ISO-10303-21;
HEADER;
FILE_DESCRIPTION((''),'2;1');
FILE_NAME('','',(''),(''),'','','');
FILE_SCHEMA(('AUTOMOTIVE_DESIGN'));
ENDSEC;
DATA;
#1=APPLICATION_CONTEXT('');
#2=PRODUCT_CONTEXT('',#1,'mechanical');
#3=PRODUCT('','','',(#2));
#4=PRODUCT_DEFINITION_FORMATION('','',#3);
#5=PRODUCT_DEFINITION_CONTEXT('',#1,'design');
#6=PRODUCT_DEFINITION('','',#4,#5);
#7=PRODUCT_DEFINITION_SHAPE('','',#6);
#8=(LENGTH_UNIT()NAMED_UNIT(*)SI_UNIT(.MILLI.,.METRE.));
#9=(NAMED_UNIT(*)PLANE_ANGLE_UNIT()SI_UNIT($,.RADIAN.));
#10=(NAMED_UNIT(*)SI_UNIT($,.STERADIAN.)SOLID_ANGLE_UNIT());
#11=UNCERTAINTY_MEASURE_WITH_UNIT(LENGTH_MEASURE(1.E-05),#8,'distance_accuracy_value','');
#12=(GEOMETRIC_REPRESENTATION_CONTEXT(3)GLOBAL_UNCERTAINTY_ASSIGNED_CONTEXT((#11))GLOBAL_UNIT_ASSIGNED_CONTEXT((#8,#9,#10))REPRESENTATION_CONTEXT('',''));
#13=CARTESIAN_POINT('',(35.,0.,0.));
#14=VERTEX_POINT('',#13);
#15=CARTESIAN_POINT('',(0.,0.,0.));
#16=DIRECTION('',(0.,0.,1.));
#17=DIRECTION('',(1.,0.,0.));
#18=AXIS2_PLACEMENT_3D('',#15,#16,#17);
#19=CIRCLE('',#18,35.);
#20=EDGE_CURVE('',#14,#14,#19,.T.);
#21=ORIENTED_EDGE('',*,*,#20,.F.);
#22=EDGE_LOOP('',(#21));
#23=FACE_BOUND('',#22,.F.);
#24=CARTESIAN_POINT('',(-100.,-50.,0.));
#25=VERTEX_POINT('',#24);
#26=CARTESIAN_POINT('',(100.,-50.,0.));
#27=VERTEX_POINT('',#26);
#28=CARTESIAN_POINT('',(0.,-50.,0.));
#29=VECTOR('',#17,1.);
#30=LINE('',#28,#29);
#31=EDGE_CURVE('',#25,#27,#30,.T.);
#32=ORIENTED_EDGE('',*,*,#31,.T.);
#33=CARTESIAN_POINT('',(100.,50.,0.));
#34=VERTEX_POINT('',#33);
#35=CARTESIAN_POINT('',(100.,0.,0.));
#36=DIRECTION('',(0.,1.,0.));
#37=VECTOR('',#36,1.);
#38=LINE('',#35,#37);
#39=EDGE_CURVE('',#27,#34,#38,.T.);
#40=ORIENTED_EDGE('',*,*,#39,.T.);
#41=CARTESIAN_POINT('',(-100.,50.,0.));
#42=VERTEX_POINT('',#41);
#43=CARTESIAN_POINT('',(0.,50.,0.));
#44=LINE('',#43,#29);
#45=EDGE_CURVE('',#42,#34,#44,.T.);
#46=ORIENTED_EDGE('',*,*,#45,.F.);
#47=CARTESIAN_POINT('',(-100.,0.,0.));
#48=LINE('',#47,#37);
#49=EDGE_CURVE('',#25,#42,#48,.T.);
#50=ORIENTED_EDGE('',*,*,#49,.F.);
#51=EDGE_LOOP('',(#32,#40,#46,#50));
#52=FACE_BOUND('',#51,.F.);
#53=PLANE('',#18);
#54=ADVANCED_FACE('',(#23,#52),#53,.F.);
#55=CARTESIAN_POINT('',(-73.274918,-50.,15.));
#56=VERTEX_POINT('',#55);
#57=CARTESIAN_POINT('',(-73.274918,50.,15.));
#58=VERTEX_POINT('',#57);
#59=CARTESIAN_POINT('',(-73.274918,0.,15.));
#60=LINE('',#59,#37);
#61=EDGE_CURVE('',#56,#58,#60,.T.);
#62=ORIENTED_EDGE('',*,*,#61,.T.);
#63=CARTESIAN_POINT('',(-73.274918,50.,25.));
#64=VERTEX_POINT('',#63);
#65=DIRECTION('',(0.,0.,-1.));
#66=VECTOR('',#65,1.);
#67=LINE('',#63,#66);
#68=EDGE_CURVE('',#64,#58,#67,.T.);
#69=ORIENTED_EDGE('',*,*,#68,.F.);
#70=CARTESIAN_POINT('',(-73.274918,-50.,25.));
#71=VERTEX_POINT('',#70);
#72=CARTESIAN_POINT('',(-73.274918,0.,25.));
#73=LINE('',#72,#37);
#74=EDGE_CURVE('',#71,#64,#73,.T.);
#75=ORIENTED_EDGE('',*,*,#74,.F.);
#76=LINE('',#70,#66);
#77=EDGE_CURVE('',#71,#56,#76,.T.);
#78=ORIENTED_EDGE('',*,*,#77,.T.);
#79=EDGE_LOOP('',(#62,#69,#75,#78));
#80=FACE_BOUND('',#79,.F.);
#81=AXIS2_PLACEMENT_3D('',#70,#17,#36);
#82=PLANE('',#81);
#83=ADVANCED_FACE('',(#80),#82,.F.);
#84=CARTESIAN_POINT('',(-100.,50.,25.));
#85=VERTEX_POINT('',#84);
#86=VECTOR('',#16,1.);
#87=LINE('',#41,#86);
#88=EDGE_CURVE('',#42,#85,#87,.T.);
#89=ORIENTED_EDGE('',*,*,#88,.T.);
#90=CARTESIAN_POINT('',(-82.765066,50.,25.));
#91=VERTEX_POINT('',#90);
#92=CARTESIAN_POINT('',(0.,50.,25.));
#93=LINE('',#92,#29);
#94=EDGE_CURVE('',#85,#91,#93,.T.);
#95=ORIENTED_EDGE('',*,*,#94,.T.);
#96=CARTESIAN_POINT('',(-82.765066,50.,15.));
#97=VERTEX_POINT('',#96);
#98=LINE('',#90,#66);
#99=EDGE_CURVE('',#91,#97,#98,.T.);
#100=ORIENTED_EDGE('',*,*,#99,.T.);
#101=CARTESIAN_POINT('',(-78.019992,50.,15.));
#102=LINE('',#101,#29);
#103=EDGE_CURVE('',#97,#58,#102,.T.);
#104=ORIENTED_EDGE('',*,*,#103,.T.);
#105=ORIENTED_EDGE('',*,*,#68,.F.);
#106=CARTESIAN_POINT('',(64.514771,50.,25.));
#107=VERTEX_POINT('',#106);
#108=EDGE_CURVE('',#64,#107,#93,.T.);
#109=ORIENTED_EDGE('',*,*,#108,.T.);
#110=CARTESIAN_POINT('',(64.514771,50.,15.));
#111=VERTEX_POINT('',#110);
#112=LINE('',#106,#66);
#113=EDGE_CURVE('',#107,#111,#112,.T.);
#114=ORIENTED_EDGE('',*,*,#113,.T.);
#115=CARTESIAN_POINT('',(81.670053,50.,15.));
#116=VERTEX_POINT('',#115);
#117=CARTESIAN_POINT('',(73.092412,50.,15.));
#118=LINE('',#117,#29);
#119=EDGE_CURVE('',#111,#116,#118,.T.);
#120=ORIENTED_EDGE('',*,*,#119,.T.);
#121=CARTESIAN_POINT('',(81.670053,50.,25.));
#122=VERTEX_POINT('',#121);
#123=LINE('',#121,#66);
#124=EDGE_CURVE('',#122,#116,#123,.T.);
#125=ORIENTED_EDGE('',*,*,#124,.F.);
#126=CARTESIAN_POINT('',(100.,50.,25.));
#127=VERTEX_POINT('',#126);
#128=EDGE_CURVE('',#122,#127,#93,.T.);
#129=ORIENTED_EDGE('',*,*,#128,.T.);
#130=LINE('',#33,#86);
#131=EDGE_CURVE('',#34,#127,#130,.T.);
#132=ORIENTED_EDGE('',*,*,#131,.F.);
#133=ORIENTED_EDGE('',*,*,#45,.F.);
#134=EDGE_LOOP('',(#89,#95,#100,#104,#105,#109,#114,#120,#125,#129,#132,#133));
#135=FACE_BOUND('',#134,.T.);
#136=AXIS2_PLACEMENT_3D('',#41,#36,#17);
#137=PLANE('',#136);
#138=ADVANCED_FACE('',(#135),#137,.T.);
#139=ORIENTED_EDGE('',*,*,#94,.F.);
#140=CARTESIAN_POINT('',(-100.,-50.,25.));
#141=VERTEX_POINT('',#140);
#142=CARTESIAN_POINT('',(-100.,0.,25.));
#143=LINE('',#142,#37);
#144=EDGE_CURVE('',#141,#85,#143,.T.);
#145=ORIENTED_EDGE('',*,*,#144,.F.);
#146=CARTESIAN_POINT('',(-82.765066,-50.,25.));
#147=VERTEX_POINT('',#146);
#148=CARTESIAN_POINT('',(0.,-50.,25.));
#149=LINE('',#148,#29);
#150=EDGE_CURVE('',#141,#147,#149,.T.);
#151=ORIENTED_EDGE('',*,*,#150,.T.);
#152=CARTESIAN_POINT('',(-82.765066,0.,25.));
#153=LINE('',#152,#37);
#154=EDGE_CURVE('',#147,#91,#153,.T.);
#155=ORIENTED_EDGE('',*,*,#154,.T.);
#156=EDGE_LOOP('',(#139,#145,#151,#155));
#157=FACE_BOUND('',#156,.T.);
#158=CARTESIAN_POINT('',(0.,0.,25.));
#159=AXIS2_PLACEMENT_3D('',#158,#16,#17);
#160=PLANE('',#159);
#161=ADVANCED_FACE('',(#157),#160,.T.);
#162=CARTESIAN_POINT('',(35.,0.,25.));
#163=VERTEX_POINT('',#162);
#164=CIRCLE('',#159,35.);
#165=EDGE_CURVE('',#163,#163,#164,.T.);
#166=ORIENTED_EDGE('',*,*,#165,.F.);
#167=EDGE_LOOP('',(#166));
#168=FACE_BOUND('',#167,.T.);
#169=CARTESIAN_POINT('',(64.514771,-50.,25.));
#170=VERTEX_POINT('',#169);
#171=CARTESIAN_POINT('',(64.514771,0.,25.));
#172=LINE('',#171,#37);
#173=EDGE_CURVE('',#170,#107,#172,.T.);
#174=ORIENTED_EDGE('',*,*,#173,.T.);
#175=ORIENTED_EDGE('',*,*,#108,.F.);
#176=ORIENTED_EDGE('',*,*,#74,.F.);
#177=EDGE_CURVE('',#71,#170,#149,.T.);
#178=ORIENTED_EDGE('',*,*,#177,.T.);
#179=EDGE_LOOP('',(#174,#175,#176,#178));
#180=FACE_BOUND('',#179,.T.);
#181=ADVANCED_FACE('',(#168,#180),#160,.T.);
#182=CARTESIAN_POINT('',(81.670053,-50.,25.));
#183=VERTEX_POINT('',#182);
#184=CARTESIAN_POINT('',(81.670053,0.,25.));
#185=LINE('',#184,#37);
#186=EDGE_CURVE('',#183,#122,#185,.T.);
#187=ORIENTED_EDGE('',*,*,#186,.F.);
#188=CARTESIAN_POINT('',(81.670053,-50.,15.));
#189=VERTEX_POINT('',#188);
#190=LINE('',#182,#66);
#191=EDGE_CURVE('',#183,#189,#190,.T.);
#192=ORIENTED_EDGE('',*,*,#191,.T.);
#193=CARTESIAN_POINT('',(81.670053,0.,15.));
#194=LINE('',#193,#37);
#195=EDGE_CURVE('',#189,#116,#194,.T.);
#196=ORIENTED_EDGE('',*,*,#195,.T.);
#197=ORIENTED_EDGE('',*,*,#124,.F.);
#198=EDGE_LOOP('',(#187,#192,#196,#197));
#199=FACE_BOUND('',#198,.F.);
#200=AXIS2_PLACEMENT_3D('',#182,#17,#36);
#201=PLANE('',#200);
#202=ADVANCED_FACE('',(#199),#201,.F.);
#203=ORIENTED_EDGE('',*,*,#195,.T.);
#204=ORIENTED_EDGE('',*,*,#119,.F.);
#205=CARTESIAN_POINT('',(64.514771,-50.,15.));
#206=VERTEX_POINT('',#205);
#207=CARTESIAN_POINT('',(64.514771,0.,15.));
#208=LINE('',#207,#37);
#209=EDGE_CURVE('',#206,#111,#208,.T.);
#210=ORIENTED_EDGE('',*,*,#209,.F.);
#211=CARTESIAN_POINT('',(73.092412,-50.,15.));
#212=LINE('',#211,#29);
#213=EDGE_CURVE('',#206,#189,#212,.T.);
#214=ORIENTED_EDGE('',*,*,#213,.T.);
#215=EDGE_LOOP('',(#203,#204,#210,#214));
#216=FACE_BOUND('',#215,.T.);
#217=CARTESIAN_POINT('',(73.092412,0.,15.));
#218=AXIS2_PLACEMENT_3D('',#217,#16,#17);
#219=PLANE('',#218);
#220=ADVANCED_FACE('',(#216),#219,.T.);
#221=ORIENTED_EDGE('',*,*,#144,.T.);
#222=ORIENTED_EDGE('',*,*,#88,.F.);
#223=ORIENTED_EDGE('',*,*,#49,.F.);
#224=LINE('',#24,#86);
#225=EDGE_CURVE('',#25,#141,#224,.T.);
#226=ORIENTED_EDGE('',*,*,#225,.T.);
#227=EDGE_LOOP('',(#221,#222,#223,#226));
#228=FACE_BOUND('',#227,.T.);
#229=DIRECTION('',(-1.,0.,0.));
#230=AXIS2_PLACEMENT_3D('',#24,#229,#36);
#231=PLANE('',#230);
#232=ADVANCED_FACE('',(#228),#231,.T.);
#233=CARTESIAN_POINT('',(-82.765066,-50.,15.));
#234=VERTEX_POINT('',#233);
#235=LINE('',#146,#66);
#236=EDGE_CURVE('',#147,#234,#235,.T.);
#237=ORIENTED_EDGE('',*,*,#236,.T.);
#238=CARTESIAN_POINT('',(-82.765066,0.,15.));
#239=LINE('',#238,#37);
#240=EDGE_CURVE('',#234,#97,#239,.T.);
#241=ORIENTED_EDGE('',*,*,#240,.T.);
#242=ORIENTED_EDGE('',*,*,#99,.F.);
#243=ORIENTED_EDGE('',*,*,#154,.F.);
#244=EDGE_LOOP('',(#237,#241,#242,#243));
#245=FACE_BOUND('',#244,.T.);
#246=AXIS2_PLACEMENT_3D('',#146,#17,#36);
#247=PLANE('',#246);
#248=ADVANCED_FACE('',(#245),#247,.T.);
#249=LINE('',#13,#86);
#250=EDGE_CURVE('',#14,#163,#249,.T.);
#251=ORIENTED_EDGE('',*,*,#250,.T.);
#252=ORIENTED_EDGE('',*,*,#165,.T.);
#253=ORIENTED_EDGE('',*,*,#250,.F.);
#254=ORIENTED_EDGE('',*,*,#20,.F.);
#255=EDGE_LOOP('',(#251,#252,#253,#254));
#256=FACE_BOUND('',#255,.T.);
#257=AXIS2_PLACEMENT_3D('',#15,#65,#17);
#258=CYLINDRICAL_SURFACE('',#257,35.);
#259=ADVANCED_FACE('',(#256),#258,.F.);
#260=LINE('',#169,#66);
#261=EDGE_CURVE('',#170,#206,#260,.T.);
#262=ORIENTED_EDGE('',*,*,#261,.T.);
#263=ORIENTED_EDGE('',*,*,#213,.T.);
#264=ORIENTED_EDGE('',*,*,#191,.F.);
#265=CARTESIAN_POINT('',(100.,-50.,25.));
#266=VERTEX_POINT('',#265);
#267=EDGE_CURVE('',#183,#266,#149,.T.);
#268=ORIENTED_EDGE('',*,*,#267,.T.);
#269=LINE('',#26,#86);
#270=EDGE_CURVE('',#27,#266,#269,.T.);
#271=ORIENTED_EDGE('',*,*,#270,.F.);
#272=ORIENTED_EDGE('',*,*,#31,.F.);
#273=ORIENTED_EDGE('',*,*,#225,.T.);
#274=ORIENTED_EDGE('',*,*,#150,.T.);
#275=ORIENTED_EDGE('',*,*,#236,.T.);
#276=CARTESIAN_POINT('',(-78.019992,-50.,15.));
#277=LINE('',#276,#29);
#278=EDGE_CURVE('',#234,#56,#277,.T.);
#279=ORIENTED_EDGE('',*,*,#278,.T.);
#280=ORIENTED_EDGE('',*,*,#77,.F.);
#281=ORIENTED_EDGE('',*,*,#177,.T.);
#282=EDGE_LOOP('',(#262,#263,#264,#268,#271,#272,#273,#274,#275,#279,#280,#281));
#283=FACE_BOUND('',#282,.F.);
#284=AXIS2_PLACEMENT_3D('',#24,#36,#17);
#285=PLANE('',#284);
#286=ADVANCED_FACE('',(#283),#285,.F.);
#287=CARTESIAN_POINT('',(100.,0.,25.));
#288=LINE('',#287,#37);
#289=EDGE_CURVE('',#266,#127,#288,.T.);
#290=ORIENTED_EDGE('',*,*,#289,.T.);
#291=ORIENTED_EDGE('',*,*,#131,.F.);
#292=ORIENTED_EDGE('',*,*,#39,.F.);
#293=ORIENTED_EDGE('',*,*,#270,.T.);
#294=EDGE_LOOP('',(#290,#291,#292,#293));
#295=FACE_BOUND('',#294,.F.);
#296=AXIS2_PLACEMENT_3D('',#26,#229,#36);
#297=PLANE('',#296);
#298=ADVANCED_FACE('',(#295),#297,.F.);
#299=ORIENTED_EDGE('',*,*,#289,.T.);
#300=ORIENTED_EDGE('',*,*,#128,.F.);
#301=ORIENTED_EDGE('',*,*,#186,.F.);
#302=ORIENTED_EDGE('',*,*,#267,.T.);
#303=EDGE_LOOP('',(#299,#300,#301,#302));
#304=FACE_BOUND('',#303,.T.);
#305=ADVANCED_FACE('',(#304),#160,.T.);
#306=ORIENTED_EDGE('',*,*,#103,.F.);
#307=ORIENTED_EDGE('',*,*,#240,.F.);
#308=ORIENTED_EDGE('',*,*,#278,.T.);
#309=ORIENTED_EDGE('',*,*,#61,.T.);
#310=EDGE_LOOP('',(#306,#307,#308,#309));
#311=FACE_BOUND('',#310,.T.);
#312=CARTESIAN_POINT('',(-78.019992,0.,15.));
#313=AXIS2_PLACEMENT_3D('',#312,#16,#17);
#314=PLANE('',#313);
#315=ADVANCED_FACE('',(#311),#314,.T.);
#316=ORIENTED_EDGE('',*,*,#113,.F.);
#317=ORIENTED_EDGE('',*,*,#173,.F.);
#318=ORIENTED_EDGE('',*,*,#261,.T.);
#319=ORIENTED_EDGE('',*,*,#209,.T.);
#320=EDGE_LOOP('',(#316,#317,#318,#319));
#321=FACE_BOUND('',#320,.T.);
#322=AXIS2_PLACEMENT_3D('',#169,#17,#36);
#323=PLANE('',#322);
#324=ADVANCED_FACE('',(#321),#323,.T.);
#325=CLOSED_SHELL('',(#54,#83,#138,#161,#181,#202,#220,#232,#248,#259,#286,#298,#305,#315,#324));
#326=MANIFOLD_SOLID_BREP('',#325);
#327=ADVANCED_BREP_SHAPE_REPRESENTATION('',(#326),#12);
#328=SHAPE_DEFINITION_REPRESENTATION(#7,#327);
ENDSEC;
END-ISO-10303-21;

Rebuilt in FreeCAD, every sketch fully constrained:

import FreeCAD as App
import Part
import Sketcher
Q = App.Units.Quantity


def add_polygon(sketch, points):
    """Adds a closed chain of lines whose ends are joined by coincident constraints."""
    first, n = sketch.GeometryCount, len(points)
    for a, b in zip(points, points[1:] + points[:1]):
        sketch.addGeometry(Part.LineSegment(App.Vector(*a, 0), App.Vector(*b, 0)), False)
    for i in range(n):
        sketch.addConstraint(Sketcher.Constraint("Coincident", first + i, 2, first + (i + 1) % n, 1))

doc = App.newDocument("Part")
body = doc.addObject("PartDesign::Body", "Body")

sketch1 = body.newObject("Sketcher::SketchObject", "Sketch")
sketch1.AttachmentSupport = (doc.getObject("XY_Plane"), [""])
sketch1.MapMode = "FlatFace"
add_polygon(sketch1, [(-100, 50), (-100, -50), (100, -50), (100, 50)])
sketch1.addGeometry(Part.Circle(App.Vector(0, 0, 0), App.Vector(0, 0, 1), 35), False)
sketch1.addConstraint([
    Sketcher.Constraint("Vertical", 0),
    Sketcher.Constraint("Horizontal", 1),
    Sketcher.Constraint("Vertical", 2),
    Sketcher.Constraint("Horizontal", 3),
    Sketcher.Constraint("Coincident", 4, 3, -1, 1),
    Sketcher.Constraint("Symmetric", 0, 2, 2, 2, -1, 1),
    Sketcher.Constraint("Diameter", 4, Q("70 mm")),
    Sketcher.Constraint("DistanceX", 1, 1, 1, 2, Q("200 mm")),
    Sketcher.Constraint("DistanceY", 0, 2, 0, 1, Q("100 mm")),
])
pad1 = body.newObject("PartDesign::Pad", "Pad")
pad1.Profile = sketch1
pad1.Length = 25

sketch2 = body.newObject("Sketcher::SketchObject", "Sketch001")
sketch2.AttachmentSupport = (doc.getObject("XY_Plane"), [""])
sketch2.MapMode = "FlatFace"
sketch2.AttachmentOffset = App.Placement(App.Vector(0, 0, 25), App.Rotation())
add_polygon(sketch2, [(-83, 50), (-83, -50), (-73, -50), (-73, 50)])
add_polygon(sketch2, [(65, 50), (65, -50), (82, -50), (82, 50)])
sketch2.addConstraint([
    Sketcher.Constraint("Vertical", 0),
    Sketcher.Constraint("Horizontal", 1),
    Sketcher.Constraint("Vertical", 2),
    Sketcher.Constraint("Horizontal", 3),
    Sketcher.Constraint("Vertical", 4),
    Sketcher.Constraint("Horizontal", 5),
    Sketcher.Constraint("Vertical", 6),
    Sketcher.Constraint("Horizontal", 7),
    Sketcher.Constraint("Horizontal", 1, 2, 4, 2),
    Sketcher.Constraint("Horizontal", 3, 2, 6, 2),
    Sketcher.Constraint("DistanceY", 0, 2, 0, 1, Q("100 mm")),
    Sketcher.Constraint("DistanceY", 0, 2, -1, 1, Q("50 mm")),
    Sketcher.Constraint("DistanceX", 5, 1, 5, 2, Q("17.155282 mm")),
    Sketcher.Constraint("DistanceX", 1, 1, 1, 2, Q("9.490147 mm")),
    Sketcher.Constraint("DistanceX", 1, 2, -1, 1, Q("73.274918 mm")),
    Sketcher.Constraint("DistanceX", -1, 1, 4, 2, Q("64.514771 mm")),
])
pocket1 = body.newObject("PartDesign::Pocket", "Pocket")
pocket1.Profile = sketch2
pocket1.Length = 10

doc.recompute()
